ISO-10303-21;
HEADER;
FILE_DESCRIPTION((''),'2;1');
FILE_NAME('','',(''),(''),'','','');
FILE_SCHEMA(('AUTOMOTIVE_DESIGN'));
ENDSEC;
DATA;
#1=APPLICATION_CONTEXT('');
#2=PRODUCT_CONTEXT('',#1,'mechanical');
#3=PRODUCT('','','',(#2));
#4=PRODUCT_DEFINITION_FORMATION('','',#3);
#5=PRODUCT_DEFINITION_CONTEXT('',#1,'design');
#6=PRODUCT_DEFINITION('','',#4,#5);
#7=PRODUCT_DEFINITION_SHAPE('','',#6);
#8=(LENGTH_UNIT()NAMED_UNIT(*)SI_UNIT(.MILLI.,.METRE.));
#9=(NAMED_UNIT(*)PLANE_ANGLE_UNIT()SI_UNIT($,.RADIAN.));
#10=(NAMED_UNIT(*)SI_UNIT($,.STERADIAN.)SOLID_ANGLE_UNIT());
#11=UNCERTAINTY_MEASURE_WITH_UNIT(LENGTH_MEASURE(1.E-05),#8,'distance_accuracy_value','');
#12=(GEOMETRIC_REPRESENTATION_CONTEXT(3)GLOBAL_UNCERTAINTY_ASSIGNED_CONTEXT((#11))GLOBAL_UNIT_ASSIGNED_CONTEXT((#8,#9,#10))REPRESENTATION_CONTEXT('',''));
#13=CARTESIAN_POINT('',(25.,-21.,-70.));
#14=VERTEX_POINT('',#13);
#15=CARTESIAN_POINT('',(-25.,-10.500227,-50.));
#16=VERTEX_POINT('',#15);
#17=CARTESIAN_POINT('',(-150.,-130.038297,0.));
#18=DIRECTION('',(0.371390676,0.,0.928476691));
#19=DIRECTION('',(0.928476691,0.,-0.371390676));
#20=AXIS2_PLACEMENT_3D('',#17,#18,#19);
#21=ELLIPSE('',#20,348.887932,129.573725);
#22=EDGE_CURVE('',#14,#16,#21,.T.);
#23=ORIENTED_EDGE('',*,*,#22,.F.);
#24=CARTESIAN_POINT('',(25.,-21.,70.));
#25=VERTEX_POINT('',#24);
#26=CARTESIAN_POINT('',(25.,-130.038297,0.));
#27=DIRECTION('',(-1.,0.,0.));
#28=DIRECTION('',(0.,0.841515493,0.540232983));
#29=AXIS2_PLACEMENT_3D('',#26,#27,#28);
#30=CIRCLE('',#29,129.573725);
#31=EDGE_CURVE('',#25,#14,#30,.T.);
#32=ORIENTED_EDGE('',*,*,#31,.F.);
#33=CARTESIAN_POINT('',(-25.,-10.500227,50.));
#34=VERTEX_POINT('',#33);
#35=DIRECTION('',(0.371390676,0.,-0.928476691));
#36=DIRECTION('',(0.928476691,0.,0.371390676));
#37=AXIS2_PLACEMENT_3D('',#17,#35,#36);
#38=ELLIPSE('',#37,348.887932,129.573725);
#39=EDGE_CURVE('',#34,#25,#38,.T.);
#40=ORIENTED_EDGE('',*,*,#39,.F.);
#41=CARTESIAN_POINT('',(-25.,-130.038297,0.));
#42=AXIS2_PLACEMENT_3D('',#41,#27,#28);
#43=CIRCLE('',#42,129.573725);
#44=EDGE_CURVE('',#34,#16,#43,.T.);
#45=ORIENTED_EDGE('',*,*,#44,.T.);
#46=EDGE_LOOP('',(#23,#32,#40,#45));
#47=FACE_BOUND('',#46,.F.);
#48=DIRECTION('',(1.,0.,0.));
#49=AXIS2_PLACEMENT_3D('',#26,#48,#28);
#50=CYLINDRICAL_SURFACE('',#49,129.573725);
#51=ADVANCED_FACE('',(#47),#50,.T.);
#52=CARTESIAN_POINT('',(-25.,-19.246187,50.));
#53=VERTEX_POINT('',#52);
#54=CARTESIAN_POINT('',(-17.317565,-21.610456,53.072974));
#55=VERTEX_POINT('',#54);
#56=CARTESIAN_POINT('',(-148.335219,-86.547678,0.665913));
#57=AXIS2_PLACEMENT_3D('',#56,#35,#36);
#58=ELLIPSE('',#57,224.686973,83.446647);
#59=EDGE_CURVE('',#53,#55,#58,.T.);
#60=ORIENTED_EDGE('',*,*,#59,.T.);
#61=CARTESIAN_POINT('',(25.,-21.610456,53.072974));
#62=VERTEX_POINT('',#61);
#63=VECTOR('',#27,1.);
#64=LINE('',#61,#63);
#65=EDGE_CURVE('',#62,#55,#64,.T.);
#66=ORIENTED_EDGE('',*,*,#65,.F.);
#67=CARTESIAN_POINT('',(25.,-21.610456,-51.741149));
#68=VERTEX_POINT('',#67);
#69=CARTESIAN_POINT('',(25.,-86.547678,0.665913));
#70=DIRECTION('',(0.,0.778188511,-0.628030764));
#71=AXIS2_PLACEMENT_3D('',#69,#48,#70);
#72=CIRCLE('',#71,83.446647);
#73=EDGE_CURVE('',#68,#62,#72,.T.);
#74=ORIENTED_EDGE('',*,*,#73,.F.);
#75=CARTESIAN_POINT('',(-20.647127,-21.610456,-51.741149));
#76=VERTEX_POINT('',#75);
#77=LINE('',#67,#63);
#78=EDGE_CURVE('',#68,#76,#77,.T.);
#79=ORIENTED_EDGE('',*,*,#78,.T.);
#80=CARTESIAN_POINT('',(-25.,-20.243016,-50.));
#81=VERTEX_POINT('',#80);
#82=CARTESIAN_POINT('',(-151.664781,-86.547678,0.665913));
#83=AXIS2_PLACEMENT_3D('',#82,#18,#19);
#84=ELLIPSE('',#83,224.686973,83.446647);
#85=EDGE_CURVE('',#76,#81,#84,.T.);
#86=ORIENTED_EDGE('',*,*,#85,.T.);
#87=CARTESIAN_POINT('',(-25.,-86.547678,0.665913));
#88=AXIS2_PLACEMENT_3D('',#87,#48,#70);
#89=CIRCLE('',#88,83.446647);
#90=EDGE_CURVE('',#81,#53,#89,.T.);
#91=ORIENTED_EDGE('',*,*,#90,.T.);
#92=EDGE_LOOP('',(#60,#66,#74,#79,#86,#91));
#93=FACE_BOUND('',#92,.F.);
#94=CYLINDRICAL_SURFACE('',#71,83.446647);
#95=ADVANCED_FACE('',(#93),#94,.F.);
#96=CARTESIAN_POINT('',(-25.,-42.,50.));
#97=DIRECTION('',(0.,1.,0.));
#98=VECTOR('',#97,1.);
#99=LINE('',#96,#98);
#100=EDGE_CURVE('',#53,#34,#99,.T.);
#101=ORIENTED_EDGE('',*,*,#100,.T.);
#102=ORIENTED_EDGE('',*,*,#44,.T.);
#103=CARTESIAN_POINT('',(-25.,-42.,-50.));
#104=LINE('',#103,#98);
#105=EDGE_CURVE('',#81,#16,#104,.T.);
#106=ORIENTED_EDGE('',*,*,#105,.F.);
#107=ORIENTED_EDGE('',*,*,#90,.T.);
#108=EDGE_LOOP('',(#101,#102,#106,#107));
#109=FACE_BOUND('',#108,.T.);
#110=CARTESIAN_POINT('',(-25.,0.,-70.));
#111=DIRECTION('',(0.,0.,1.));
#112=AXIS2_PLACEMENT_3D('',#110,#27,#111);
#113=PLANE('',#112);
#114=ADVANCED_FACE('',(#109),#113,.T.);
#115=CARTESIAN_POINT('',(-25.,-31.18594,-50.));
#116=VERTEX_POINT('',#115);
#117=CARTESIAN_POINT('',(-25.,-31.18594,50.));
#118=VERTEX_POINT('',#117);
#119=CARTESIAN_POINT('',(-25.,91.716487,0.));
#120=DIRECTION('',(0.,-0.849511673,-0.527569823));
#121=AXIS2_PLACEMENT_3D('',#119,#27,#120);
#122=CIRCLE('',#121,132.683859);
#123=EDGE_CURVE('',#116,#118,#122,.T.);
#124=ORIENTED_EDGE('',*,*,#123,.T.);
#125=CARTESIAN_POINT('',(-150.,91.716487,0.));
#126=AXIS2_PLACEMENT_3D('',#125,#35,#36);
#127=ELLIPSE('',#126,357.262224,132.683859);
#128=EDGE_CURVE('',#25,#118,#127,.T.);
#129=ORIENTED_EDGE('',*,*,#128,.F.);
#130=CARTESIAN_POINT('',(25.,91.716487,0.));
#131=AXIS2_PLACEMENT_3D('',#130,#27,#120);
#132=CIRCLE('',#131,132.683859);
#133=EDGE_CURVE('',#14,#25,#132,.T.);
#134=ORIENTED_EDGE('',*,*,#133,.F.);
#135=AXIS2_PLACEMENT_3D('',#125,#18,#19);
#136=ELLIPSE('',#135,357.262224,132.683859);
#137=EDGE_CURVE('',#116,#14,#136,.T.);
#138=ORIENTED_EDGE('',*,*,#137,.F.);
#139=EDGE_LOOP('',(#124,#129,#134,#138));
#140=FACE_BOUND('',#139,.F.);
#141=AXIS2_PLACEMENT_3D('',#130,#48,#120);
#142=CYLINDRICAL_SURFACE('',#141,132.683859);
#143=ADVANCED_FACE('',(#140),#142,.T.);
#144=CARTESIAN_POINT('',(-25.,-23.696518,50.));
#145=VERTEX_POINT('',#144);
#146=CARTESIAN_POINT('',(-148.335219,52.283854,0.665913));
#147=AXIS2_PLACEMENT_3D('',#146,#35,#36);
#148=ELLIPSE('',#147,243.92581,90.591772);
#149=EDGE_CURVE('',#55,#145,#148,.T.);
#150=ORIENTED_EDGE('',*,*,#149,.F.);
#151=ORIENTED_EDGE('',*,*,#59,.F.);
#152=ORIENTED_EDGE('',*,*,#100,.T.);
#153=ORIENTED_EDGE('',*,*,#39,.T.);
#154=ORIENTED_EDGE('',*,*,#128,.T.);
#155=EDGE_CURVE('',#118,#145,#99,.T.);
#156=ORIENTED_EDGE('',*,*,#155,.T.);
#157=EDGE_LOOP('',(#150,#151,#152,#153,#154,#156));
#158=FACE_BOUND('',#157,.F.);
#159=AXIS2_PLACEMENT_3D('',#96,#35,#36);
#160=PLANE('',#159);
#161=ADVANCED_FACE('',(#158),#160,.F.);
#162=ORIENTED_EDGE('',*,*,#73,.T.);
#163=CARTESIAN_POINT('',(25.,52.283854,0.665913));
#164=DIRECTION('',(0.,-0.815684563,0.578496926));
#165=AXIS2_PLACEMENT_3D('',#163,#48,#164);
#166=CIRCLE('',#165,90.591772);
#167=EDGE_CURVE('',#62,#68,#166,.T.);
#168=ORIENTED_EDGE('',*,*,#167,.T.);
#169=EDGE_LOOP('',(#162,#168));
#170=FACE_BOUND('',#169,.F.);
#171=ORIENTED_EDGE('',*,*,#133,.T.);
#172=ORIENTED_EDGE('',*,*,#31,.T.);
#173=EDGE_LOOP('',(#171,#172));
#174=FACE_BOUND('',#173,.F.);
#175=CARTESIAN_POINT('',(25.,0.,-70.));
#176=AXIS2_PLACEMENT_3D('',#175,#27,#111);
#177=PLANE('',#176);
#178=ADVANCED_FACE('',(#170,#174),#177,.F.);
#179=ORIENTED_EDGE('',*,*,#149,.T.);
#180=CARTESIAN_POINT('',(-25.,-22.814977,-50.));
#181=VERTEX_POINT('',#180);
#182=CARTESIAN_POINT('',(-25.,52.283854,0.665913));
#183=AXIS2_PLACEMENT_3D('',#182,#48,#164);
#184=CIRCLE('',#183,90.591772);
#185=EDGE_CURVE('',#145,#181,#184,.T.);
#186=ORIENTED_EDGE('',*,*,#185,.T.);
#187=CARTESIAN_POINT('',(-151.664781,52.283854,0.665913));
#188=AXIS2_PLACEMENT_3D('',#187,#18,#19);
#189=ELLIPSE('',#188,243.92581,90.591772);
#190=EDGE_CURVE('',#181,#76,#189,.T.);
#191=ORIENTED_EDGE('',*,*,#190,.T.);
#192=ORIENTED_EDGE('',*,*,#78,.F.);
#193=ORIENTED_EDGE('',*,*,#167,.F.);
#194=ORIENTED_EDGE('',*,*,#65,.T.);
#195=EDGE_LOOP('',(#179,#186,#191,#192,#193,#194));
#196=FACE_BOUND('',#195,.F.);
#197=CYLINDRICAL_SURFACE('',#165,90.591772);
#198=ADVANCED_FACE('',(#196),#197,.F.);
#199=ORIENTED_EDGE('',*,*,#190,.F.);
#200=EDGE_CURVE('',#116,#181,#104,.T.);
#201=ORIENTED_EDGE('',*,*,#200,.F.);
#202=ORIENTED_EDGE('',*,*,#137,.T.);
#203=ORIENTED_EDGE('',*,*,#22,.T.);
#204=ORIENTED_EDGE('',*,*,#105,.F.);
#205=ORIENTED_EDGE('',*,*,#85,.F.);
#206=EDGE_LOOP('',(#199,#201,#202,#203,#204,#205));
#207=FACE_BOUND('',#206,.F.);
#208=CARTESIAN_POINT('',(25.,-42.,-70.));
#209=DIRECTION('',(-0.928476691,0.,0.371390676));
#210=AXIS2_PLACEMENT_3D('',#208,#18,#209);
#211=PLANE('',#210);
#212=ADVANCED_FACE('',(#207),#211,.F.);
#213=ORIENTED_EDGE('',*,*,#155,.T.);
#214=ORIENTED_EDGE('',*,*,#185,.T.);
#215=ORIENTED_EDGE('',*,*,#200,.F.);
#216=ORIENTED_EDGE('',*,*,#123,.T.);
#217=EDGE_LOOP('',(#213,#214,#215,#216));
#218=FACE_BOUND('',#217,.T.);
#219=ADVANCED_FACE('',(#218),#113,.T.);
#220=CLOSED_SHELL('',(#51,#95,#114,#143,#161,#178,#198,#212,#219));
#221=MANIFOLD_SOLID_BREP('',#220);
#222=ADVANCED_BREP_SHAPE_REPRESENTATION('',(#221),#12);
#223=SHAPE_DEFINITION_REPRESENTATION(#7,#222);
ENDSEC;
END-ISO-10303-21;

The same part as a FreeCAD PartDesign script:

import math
import FreeCAD as App
import Part
import Sketcher
from FreeCAD import Vector


def add_polygon(sketch, points):
    """Adds a closed chain of lines whose ends are joined by coincident constraints."""
    first, n = sketch.GeometryCount, len(points)
    for a, b in zip(points, points[1:] + points[:1]):
        sketch.addGeometry(Part.LineSegment(App.Vector(*a, 0), App.Vector(*b, 0)), False)
    for i in range(n):
        sketch.addConstraint(Sketcher.Constraint("Coincident", first + i, 2, first + (i + 1) % n, 1))

doc = App.newDocument("Part")
params = doc.addObject("Spreadsheet::Sheet", "Params")
for row, (alias, value) in enumerate([
    ("sketch1_width", "50 mm"),
    ("sketch1_height", "140 mm"),
    ("pad1_length", "42 mm"),
    ("sketch2_width", "50 mm"),
    ("sketch2_height", "20 mm"),
    ("pocket1_length", "42 mm"),
    ("sketch3_height", "140 mm"),
    ("pocket2_length", "50 mm"),
    ("sketch4_height", "140 mm"),
    ("pocket3_length", "50 mm"),
    ("pocket4_length", "50 mm"),
], start=1):
    params.set(f"A{row}", alias)
    params.set(f"B{row}", "=" + value)
    params.setAlias(f"B{row}", alias)

body = doc.addObject("PartDesign::Body", "Body")

sketch1 = doc.addObject("Sketcher::SketchObject", "Sketch")
body.addObject(sketch1)
sketch1.AttachmentSupport = (doc.XZ_Plane, [""])
sketch1.MapMode = "FlatFace"
add_polygon(sketch1, [(-25, 70), (-25, -70), (25, -70), (25, 70)])
sketch1.addConstraint([
    Sketcher.Constraint("Vertical", 0),
    Sketcher.Constraint("Horizontal", 1),
    Sketcher.Constraint("Vertical", 2),
    Sketcher.Constraint("Horizontal", 3),
    Sketcher.Constraint("Symmetric", 0, 2, 2, 2, -1, 1),
    Sketcher.Constraint("DistanceX", 1, 1, 1, 2, 50.0),
    Sketcher.Constraint("DistanceY", 0, 2, 0, 1, 140.0),
])
sketch1.setExpression("Constraints[9]", "Params.sketch1_width")
sketch1.setExpression("Constraints[10]", "Params.sketch1_height")
pad1 = doc.addObject("PartDesign::Pad", "Pad")
body.addObject(pad1)
pad1.Profile = sketch1
pad1.setExpression("Length", "Params.pad1_length")

sketch2 = doc.addObject("Sketcher::SketchObject", "Sketch001")
body.addObject(sketch2)
sketch2.AttachmentSupport = (doc.XZ_Plane, [""])
sketch2.MapMode = "FlatFace"
sketch2.AttachmentOffset = App.Placement(Vector(0, 0, 42), App.Rotation())
add_polygon(sketch2, [(25, 70), (-25, 70), (-25, 50)])
add_polygon(sketch2, [(-25, -50), (-25, -70), (25, -70)])
sketch2.addConstraint([
    Sketcher.Constraint("Horizontal", 0),
    Sketcher.Constraint("Vertical", 1),
    Sketcher.Constraint("Vertical", 3),
    Sketcher.Constraint("Horizontal", 4),
    Sketcher.Constraint("Symmetric", 2, 2, 3, 2, -1, 1),
    Sketcher.Constraint("Symmetric", 1, 2, 5, 2, -1),
    Sketcher.Constraint("Vertical", 2, 2, 4, 2),
    Sketcher.Constraint("DistanceX", 0, 2, 0, 1, 50.0),
    Sketcher.Constraint("DistanceY", 1, 2, 1, 1, 20.0),
    Sketcher.Constraint("DistanceY", -1, 1, 0, 2, 70.0),
])
sketch2.setExpression("Constraints[13]", "Params.sketch2_width")
sketch2.setExpression("Constraints[14]", "Params.sketch2_height")
pocket1 = doc.addObject("PartDesign::Pocket", "Pocket")
body.addObject(pocket1)
pocket1.Profile = sketch2
pocket1.setExpression("Length", "Params.pocket1_length")

sketch3 = doc.addObject("Sketcher::SketchObject", "Sketch002")
body.addObject(sketch3)
sketch3.AttachmentSupport = (doc.YZ_Plane, [""])
sketch3.MapMode = "FlatFace"
sketch3.AttachmentOffset = App.Placement(Vector(0, 0, 25), App.Rotation())
sketch3.addGeometry([
    Part.ArcOfCircle(Part.Circle(Vector(92, 0, 0), Vector(0, 0, 1), 133), math.radians(148), math.radians(212)),
    Part.LineSegment(Vector(-21, 70, 0), Vector(-48, 70, 0)),
    Part.LineSegment(Vector(-48, 70, 0), Vector(-48, -70, 0)),
    Part.LineSegment(Vector(-48, -70, 0), Vector(-21, -70, 0)),
], False)
sketch3.addConstraint([
    Sketcher.Constraint("Coincident", 0, 1, 1, 1),
    Sketcher.Constraint("Coincident", 1, 2, 2, 1),
    Sketcher.Constraint("Coincident", 2, 2, 3, 1),
    Sketcher.Constraint("Coincident", 3, 2, 0, 2),
    Sketcher.Constraint("Horizontal", 1),
    Sketcher.Constraint("Vertical", 2),
    Sketcher.Constraint("Horizontal", 3),
    Sketcher.Constraint("Symmetric", 0, 1, 3, 2, -1),
    Sketcher.Constraint("DistanceY", 2, 2, 2, 1, 140.0),
    Sketcher.Constraint("DistanceX", 0, 1, -1, 1, 21.0),
    Sketcher.Constraint("Radius", 0, 132.683859),
    Sketcher.Constraint("DistanceX", 1, 2, 1, 1, 26.731567),
])
sketch3.setExpression("Constraints[8]", "Params.sketch3_height")
pocket2 = doc.addObject("PartDesign::Pocket", "Pocket001")
body.addObject(pocket2)
pocket2.Profile = sketch3
pocket2.setExpression("Length", "Params.pocket2_length")

sketch4 = doc.addObject("Sketcher::SketchObject", "Sketch003")
body.addObject(sketch4)
sketch4.AttachmentSupport = (doc.YZ_Plane, [""])
sketch4.MapMode = "FlatFace"
sketch4.AttachmentOffset = App.Placement(Vector(0, 0, 25), App.Rotation())
sketch4.addGeometry([
    Part.ArcOfCircle(Part.Circle(Vector(-130, 0, 0), Vector(0, 0, 1), 130), math.radians(-33), math.radians(33)),
    Part.LineSegment(Vector(-21, -70, 0), Vector(4, -70, 0)),
    Part.LineSegment(Vector(4, -70, 0), Vector(4, 70, 0)),
    Part.LineSegment(Vector(4, 70, 0), Vector(-21, 70, 0)),
], False)
sketch4.addConstraint([
    Sketcher.Constraint("Coincident", 0, 1, 1, 1),
    Sketcher.Constraint("Coincident", 1, 2, 2, 1),
    Sketcher.Constraint("Coincident", 2, 2, 3, 1),
    Sketcher.Constraint("Coincident", 3, 2, 0, 2),
    Sketcher.Constraint("Horizontal", 1),
    Sketcher.Constraint("Vertical", 2),
    Sketcher.Constraint("Horizontal", 3),
    Sketcher.Constraint("Symmetric", 0, 1, 3, 2, -1),
    Sketcher.Constraint("DistanceY", 2, 1, 2, 2, 140.0),
    Sketcher.Constraint("DistanceX", 0, 1, -1, 1, 21.0),
    Sketcher.Constraint("Radius", 0, 129.573725),
    Sketcher.Constraint("DistanceX", 1, 1, 1, 2, 24.54092),
])
sketch4.setExpression("Constraints[8]", "Params.sketch4_height")
pocket3 = doc.addObject("PartDesign::Pocket", "Pocket002")
body.addObject(pocket3)
pocket3.Profile = sketch4
pocket3.setExpression("Length", "Params.pocket3_length")

sketch5 = doc.addObject("Sketcher::SketchObject", "Sketch004")
body.addObject(sketch5)
sketch5.AttachmentSupport = (doc.YZ_Plane, [""])
sketch5.MapMode = "FlatFace"
sketch5.AttachmentOffset = App.Placement(Vector(0, 0, 25), App.Rotation())
sketch5.addGeometry([
    Part.ArcOfCircle(Part.Circle(Vector(52, 1, 0), Vector(0, 0, 1), 91), math.radians(145), math.radians(215)),
    Part.ArcOfCircle(Part.Circle(Vector(-87, 1, 0), Vector(0, 0, 1), 83), math.radians(-39), math.radians(39)),
], False)
sketch5.addConstraint([
    Sketcher.Constraint("Coincident", 0, 1, 1, 2),
    Sketcher.Constraint("Coincident", 1, 1, 0, 2),
    Sketcher.Constraint("Horizontal", 0, 3, 1, 3),
    Sketcher.Constraint("Radius", 0, 90.591772),
    Sketcher.Constraint("Radius", 1, 83.446647),
    Sketcher.Constraint("DistanceX", 1, 3, -1, 1, 86.547678),
    Sketcher.Constraint("DistanceY", 1, 1, -1, 1, 51.741149),
    Sketcher.Constraint("DistanceX", 1, 3, 0, 3, 138.831532),
])
pocket4 = doc.addObject("PartDesign::Pocket", "Pocket003")
body.addObject(pocket4)
pocket4.Profile = sketch5
pocket4.setExpression("Length", "Params.pocket4_length")

doc.recompute()
